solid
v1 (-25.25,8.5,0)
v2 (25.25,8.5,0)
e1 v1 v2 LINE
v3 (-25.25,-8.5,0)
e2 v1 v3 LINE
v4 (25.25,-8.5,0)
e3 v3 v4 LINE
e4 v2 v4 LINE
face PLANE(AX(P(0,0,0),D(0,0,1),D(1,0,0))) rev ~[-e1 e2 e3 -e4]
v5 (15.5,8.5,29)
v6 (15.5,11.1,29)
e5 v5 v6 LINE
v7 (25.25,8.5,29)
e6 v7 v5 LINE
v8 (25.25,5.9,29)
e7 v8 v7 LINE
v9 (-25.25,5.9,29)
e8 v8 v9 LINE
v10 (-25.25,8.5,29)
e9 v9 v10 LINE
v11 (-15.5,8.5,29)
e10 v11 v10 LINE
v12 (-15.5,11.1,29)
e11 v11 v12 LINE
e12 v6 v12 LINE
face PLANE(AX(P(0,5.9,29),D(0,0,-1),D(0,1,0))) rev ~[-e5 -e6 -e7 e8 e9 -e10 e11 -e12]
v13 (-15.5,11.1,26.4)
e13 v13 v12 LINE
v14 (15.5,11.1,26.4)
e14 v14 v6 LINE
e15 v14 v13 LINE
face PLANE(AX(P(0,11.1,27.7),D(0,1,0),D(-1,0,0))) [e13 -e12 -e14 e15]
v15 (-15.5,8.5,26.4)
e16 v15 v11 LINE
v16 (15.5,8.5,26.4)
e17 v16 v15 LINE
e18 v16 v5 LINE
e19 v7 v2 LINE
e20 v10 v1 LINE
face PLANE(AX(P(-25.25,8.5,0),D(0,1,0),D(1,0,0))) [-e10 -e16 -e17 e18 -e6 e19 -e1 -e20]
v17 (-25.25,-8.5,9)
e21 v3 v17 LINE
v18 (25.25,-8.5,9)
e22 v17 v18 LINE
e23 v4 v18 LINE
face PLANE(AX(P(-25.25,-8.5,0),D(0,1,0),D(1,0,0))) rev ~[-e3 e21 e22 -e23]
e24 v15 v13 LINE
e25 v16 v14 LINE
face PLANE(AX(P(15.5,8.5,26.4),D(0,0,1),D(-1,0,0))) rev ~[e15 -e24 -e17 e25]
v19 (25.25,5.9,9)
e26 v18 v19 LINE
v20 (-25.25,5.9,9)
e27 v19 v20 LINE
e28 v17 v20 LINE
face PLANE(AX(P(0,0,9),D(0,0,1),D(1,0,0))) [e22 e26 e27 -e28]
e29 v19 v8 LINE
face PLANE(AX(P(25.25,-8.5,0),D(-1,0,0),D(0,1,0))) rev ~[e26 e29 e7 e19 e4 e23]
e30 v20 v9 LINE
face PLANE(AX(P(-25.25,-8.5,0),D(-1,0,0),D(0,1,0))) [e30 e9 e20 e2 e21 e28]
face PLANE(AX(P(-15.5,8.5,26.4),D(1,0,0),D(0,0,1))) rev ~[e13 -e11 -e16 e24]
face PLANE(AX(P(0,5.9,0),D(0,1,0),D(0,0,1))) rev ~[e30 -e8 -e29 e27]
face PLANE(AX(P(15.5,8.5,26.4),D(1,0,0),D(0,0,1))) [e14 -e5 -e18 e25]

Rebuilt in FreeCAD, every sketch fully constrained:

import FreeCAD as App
import Part
import Sketcher
Q = App.Units.Quantity

doc = App.newDocument("Part")
params = doc.addObject("Spreadsheet::Sheet", "Params")
for row, (alias, value) in enumerate([
    ("sketch1_height", "17 mm"),
    ("sketch1_width", "50.5 mm"),
    ("pad1_length", "9 mm"),
    ("sketch2_height", "29 mm"),
    ("sketch2_width", "2.6 mm"),
    ("pad2_length", "50.5 mm"),
    ("sketch3_width", "31 mm"),
    ("sketch3_height", "2.6 mm"),
    ("pad3_length", "2.6 mm"),
], start=1):
    params.set(f"A{row}", alias)
    params.set(f"B{row}", "=" + value)
    params.setAlias(f"B{row}", alias)

body = doc.addObject("PartDesign::Body", "Body")

sketch1 = body.newObject("Sketcher::SketchObject", "Sketch")
sketch1.AttachmentSupport = (doc.getObject("XY_Plane"), [""])
sketch1.MapMode = "FlatFace"
sketch1.addGeometry(Part.LineSegment(App.Vector(-25.25, 8.5, 0), App.Vector(-25.25, -8.5, 0)), False)
sketch1.addGeometry(Part.LineSegment(App.Vector(-25.25, -8.5, 0), App.Vector(25.25, -8.5, 0)), False)
sketch1.addGeometry(Part.LineSegment(App.Vector(25.25, -8.5, 0), App.Vector(25.25, 8.5, 0)), False)
sketch1.addGeometry(Part.LineSegment(App.Vector(25.25, 8.5, 0), App.Vector(-25.25, 8.5, 0)), False)
sketch1.addConstraint(Sketcher.Constraint("Coincident", 0, 2, 1, 1))
sketch1.addConstraint(Sketcher.Constraint("Coincident", 1, 2, 2, 1))
sketch1.addConstraint(Sketcher.Constraint("Coincident", 2, 2, 3, 1))
sketch1.addConstraint(Sketcher.Constraint("Coincident", 3, 2, 0, 1))
sketch1.addConstraint(Sketcher.Constraint("Vertical", 0))
sketch1.addConstraint(Sketcher.Constraint("Horizontal", 1))
sketch1.addConstraint(Sketcher.Constraint("Vertical", 2))
sketch1.addConstraint(Sketcher.Constraint("Horizontal", 3))
sketch1.addConstraint(Sketcher.Constraint("Symmetric", 0, 2, 2, 2, -1, 1))
sketch1.addConstraint(Sketcher.Constraint("DistanceY", 0, 2, 0, 1, Q("17 mm")))
sketch1.addConstraint(Sketcher.Constraint("DistanceX", 1, 1, 1, 2, Q("50.5 mm")))
sketch1.setExpression("Constraints[9]", "Params.sketch1_height")
sketch1.setExpression("Constraints[10]", "Params.sketch1_width")
pad1 = body.newObject("PartDesign::Pad", "Pad")
pad1.Profile = sketch1
pad1.setExpression("Length", "Params.pad1_length")

sketch2 = body.newObject("Sketcher::SketchObject", "Sketch001")
sketch2.AttachmentSupport = (doc.getObject("YZ_Plane"), [""])
sketch2.MapMode = "FlatFace"
sketch2.addGeometry(Part.LineSegment(App.Vector(5.9, 29, 0), App.Vector(5.9, 0, 0)), False)
sketch2.addGeometry(Part.LineSegment(App.Vector(5.9, 0, 0), App.Vector(8.5, 0, 0)), False)
sketch2.addGeometry(Part.LineSegment(App.Vector(8.5, 0, 0), App.Vector(8.5, 29, 0)), False)
sketch2.addGeometry(Part.LineSegment(App.Vector(8.5, 29, 0), App.Vector(5.9, 29, 0)), False)
sketch2.addConstraint(Sketcher.Constraint("Coincident", 0, 2, 1, 1))
sketch2.addConstraint(Sketcher.Constraint("Coincident", 1, 2, 2, 1))
sketch2.addConstraint(Sketcher.Constraint("Coincident", 2, 2, 3, 1))
sketch2.addConstraint(Sketcher.Constraint("Coincident", 3, 2, 0, 1))
sketch2.addConstraint(Sketcher.Constraint("Vertical", 0))
sketch2.addConstraint(Sketcher.Constraint("Horizontal", 1))
sketch2.addConstraint(Sketcher.Constraint("Vertical", 2))
sketch2.addConstraint(Sketcher.Constraint("Horizontal", 3))
sketch2.addConstraint(Sketcher.Constraint("PointOnObject", 0, 2, -1))
sketch2.addConstraint(Sketcher.Constraint("DistanceY", 0, 2, 0, 1, Q("29 mm")))
sketch2.addConstraint(Sketcher.Constraint("DistanceX", 1, 1, 1, 2, Q("2.6 mm")))
sketch2.addConstraint(Sketcher.Constraint("DistanceX", -1, 1, 0, 2, Q("5.9 mm")))
sketch2.setExpression("Constraints[9]", "Params.sketch2_height")
sketch2.setExpression("Constraints[10]", "Params.sketch2_width")
pad2 = body.newObject("PartDesign::Pad", "Pad001")
pad2.Profile = sketch2
pad2.setExpression("Length", "Params.pad2_length")
pad2.Midplane = True

sketch3 = body.newObject("Sketcher::SketchObject", "Sketch002")
sketch3.AttachmentSupport = (doc.getObject("XZ_Plane"), [""])
sketch3.MapMode = "FlatFace"
sketch3.AttachmentOffset = App.Placement(App.Vector(0, 0, -8.5), App.Rotation())
sketch3.addGeometry(Part.LineSegment(App.Vector(15.5, 29, 0), App.Vector(15.5, 26.4, 0)), False)
sketch3.addGeometry(Part.LineSegment(App.Vector(15.5, 26.4, 0), App.Vector(-15.5, 26.4, 0)), False)
sketch3.addGeometry(Part.LineSegment(App.Vector(-15.5, 26.4, 0), App.Vector(-15.5, 29, 0)), False)
sketch3.addGeometry(Part.LineSegment(App.Vector(-15.5, 29, 0), App.Vector(15.5, 29, 0)), False)
sketch3.addConstraint(Sketcher.Constraint("Coincident", 0, 2, 1, 1))
sketch3.addConstraint(Sketcher.Constraint("Coincident", 1, 2, 2, 1))
sketch3.addConstraint(Sketcher.Constraint("Coincident", 2, 2, 3, 1))
sketch3.addConstraint(Sketcher.Constraint("Coincident", 3, 2, 0, 1))
sketch3.addConstraint(Sketcher.Constraint("Vertical", 0))
sketch3.addConstraint(Sketcher.Constraint("Horizontal", 1))
sketch3.addConstraint(Sketcher.Constraint("Vertical", 2))
sketch3.addConstraint(Sketcher.Constraint("Horizontal", 3))
sketch3.addConstraint(Sketcher.Constraint("DistanceX", 1, 2, 1, 1, Q("31 mm")))
sketch3.addConstraint(Sketcher.Constraint("DistanceY", 0, 2, 0, 1, Q("2.6 mm")))
sketch3.addConstraint(Sketcher.Constraint("DistanceY", -1, 1, 2, 2, Q("29 mm")))
sketch3.addConstraint(Sketcher.Constraint("DistanceX", -1, 1, 0, 2, Q("15.5 mm")))
sketch3.setExpression("Constraints[8]", "Params.sketch3_width")
sketch3.setExpression("Constraints[9]", "Params.sketch3_height")
pad3 = body.newObject("PartDesign::Pad", "Pad002")
pad3.Profile = sketch3
pad3.setExpression("Length", "Params.pad3_length")
pad3.Reversed = True

doc.recompute()
